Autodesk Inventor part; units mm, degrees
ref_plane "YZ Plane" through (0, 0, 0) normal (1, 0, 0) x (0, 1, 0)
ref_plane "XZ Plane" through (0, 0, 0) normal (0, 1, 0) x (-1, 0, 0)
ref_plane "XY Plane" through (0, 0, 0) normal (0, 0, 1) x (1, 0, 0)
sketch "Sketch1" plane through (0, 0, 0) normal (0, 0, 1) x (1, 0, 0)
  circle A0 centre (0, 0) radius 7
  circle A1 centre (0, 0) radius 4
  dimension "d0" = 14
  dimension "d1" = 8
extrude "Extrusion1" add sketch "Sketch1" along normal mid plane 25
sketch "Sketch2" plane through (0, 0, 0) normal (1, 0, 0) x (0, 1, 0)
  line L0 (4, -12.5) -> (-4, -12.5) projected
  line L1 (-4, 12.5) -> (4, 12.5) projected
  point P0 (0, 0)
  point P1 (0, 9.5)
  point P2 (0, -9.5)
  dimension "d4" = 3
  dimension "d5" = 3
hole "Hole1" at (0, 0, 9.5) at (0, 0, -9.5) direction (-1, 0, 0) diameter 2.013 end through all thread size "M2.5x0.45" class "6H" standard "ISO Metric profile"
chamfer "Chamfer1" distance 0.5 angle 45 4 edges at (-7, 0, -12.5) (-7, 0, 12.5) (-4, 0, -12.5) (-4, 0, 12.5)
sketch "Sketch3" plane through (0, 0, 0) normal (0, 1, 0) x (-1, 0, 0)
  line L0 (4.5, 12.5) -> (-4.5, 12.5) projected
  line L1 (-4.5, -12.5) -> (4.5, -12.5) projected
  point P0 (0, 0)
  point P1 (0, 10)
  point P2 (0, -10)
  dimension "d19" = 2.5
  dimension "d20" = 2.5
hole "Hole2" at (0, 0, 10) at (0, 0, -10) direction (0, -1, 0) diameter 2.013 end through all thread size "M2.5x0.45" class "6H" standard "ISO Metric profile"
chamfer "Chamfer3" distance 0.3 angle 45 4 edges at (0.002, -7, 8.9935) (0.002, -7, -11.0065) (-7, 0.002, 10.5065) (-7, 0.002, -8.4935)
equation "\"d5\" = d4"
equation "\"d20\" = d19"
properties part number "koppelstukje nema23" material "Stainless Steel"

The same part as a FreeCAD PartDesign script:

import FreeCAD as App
import Part
import Sketcher
from FreeCAD import Vector
Q = App.Units.Quantity


def edges_at(feature, points):
    """Names of the edges that pass closest to the given points."""
    edges = feature.Shape.Edges
    near = lambda p: min(range(len(edges)), key=lambda i: edges[i].distToShape(Part.Vertex(*p))[0])
    return sorted({f"Edge{near(p) + 1}" for p in points})

doc = App.newDocument("Part")
params = doc.addObject("Spreadsheet::Sheet", "Params")
for row, (alias, value) in enumerate([
    ("sketch1_diameter", "14 mm"),
    ("sketch1_diameter2", "8 mm"),
    ("pad1_length", "25 mm"),
    ("hole_diameter", "2.013 mm"),
    ("chamfer_size", "0.5 mm"),
    ("hole2_diameter", "2.013 mm"),
    ("chamfer2_size", "0.3 mm"),
], start=1):
    params.set(f"A{row}", alias)
    params.set(f"B{row}", "=" + value)
    params.setAlias(f"B{row}", alias)

body = doc.addObject("PartDesign::Body", "Body")

# Sketch on XY plane
sketch1 = doc.addObject("Sketcher::SketchObject", "Sketch")
body.addObject(sketch1)
sketch1.AttachmentSupport = (doc.XY_Plane, [""])
sketch1.MapMode = "FlatFace"
sketch1.addGeometry([
    Part.Circle(Vector(0, 0, 0), Vector(0, 0, 1), 7),
    Part.Circle(Vector(0, 0, 0), Vector(0, 0, 1), 4),
], False)
sketch1.addConstraint([
    Sketcher.Constraint("Coincident", 0, 3, -1, 1),
    Sketcher.Constraint("Coincident", 1, 3, -1, 1),
    Sketcher.Constraint("Diameter", 0, Q("14 mm")),
    Sketcher.Constraint("Diameter", 1, Q("8 mm")),
])
sketch1.setExpression("Constraints[2]", "Params.sketch1_diameter")
sketch1.setExpression("Constraints[3]", "Params.sketch1_diameter2")
pad1 = doc.addObject("PartDesign::Pad", "Pad")
body.addObject(pad1)
pad1.Profile = sketch1
pad1.setExpression("Length", "Params.pad1_length")
pad1.Midplane = True

# Sketch on YZ plane
sketch2 = doc.addObject("Sketcher::SketchObject", "Sketch001")
body.addObject(sketch2)
sketch2.AttachmentSupport = (doc.YZ_Plane, [""])
sketch2.MapMode = "FlatFace"
sketch2.addGeometry([
    Part.Circle(Vector(0, 9.5, 0), Vector(0, 0, 1), 1),
    Part.Circle(Vector(0, -9.5, 0), Vector(0, 0, 1), 1),
], False)
sketch2.addConstraint([
    Sketcher.Constraint("Equal", 0, 1),
    Sketcher.Constraint("Symmetric", 0, 3, 1, 3, -1, 1),
    Sketcher.Constraint("PointOnObject", 0, 3, -2),
    Sketcher.Constraint("Diameter", 0, Q("2.013 mm")),
    Sketcher.Constraint("DistanceY", 1, 3, 0, 3, Q("19 mm")),
])
doc.recompute()
hole = doc.addObject("PartDesign::Hole", "Hole")
body.addObject(hole)
hole.Profile = sketch2
hole.ThreadType = "None"
hole.setExpression("Diameter", "Params.hole_diameter")
hole.DepthType = "ThroughAll"
doc.recompute()

chamfer = doc.addObject("PartDesign::Chamfer", "Chamfer")
body.addObject(chamfer)
chamfer.Base = (hole, edges_at(hole, [
    (-7, 0, -12.5),
    (-7, 0, 12.5),
    (-4, 0, -12.5),
    (-4, 0, 12.5),
]))
chamfer.setExpression("Size", "Params.chamfer_size")

# Sketch on XZ plane
sketch3 = doc.addObject("Sketcher::SketchObject", "Sketch002")
body.addObject(sketch3)
sketch3.AttachmentSupport = (doc.XZ_Plane, [""])
sketch3.MapMode = "FlatFace"
sketch3.addGeometry([
    Part.Circle(Vector(0, 10, 0), Vector(0, 0, 1), 1),
    Part.Circle(Vector(0, -10, 0), Vector(0, 0, 1), 1),
], False)
sketch3.addConstraint([
    Sketcher.Constraint("Equal", 0, 1),
    Sketcher.Constraint("Symmetric", 0, 3, 1, 3, -1, 1),
    Sketcher.Constraint("PointOnObject", 0, 3, -2),
    Sketcher.Constraint("Diameter", 0, Q("2.013 mm")),
    Sketcher.Constraint("DistanceY", -1, 1, 0, 3, Q("10 mm")),
])
doc.recompute()
hole2 = doc.addObject("PartDesign::Hole", "Hole001")
body.addObject(hole2)
hole2.Profile = sketch3
hole2.ThreadType = "None"
hole2.setExpression("Diameter", "Params.hole2_diameter")
hole2.DepthType = "ThroughAll"
hole2.Reversed = True
doc.recompute()

chamfer2 = doc.addObject("PartDesign::Chamfer", "Chamfer001")
body.addObject(chamfer2)
chamfer2.Base = (hole2, edges_at(hole2, [
    (0.002, -7, 8.993),
    (0.002, -7, -11.007),
    (-7, 0.002, 10.507),
    (-7, 0.002, -8.493),
]))
chamfer2.setExpression("Size", "Params.chamfer2_size")

doc.recompute()
